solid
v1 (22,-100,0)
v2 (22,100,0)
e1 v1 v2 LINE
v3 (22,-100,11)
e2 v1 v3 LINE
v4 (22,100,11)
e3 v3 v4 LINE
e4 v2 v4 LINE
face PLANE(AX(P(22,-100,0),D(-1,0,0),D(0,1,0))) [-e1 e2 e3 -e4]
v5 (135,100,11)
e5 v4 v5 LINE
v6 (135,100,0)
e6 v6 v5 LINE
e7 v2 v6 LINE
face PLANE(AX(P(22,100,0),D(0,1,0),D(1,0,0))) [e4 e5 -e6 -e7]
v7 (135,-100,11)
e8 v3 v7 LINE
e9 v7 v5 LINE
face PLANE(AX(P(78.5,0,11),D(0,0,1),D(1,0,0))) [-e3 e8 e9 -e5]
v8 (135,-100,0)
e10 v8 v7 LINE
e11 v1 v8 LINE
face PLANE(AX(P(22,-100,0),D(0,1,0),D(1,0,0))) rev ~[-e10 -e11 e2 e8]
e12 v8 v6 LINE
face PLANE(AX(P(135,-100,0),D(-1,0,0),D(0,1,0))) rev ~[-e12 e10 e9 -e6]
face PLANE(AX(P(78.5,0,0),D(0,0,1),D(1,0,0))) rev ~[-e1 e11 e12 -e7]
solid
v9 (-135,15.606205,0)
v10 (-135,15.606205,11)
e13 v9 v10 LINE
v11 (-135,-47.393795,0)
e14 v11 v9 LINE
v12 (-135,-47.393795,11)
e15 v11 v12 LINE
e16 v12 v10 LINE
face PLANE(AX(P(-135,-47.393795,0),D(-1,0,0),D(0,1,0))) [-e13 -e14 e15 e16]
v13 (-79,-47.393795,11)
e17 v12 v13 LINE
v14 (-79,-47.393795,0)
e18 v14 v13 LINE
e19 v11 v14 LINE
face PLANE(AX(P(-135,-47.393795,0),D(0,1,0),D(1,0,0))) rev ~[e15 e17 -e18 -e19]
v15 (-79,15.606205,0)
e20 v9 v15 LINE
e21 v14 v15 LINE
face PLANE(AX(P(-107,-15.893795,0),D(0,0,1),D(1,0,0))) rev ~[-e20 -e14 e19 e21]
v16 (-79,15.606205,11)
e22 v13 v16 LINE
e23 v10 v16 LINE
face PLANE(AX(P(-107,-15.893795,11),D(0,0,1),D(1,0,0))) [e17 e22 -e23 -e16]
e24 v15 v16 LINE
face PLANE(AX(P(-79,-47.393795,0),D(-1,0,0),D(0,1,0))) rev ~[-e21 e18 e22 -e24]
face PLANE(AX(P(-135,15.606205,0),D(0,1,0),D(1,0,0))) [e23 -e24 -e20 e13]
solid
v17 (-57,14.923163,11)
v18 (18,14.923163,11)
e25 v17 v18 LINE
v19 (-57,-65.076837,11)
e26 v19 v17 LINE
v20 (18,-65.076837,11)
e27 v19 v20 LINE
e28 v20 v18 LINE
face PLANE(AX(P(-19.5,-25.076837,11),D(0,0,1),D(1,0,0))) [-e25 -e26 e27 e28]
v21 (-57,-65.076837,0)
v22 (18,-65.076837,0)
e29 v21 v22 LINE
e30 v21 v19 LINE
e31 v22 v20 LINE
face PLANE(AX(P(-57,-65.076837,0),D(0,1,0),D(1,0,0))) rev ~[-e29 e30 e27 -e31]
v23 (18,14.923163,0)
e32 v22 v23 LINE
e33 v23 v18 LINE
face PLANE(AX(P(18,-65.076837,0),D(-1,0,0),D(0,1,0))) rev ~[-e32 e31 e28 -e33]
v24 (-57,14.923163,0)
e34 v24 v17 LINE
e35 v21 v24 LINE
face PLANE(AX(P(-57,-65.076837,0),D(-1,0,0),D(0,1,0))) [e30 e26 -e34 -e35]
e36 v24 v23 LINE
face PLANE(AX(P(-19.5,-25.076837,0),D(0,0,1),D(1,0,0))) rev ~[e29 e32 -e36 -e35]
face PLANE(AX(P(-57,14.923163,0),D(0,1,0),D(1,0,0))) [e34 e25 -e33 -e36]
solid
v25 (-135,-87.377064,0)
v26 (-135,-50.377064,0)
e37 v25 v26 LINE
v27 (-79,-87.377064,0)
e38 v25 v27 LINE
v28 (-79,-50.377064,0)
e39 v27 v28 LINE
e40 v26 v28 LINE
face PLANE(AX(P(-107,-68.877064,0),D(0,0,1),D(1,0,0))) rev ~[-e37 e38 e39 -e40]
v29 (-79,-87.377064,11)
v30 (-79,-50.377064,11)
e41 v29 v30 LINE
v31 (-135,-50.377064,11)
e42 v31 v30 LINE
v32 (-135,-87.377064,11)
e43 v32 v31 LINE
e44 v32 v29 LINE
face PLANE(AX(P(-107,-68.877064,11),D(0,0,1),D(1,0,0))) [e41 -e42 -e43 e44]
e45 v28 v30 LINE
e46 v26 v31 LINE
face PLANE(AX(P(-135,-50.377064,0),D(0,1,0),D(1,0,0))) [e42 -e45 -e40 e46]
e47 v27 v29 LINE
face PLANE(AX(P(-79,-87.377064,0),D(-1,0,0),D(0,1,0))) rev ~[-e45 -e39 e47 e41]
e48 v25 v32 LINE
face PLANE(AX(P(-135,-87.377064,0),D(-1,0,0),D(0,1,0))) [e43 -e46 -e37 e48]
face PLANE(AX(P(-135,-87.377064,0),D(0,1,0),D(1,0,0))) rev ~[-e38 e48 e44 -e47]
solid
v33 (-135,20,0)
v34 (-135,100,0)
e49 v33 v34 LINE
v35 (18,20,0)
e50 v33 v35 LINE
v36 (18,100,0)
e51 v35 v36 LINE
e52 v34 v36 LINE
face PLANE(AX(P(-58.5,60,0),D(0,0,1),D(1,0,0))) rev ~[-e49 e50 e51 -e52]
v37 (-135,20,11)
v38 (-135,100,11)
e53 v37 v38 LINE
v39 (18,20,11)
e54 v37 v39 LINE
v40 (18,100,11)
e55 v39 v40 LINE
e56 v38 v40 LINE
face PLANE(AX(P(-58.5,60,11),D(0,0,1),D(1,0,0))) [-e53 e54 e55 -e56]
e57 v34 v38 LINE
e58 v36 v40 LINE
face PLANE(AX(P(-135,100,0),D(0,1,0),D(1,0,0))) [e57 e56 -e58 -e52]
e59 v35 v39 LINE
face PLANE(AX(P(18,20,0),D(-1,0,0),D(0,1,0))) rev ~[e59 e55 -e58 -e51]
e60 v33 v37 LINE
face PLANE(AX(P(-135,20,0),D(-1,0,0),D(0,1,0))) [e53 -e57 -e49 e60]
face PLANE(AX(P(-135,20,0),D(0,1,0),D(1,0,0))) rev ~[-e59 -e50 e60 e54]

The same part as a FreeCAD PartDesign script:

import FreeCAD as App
import Part
import Sketcher

doc = App.newDocument("Part")
body = doc.addObject("PartDesign::Body", "Body")
body.AllowCompound = True

sketch1 = body.newObject("Sketcher::SketchObject", "Sketch")
sketch1.AttachmentSupport = (doc.getObject("XY_Plane"), [""])
sketch1.MapMode = "FlatFace"
sketch1.addGeometry([
    Part.LineSegment(App.Vector(-135, 100, 0), App.Vector(-135, 20, 0)),
    Part.LineSegment(App.Vector(-135, 20, 0), App.Vector(18, 20, 0)),
    Part.LineSegment(App.Vector(18, 20, 0), App.Vector(18, 100, 0)),
    Part.LineSegment(App.Vector(18, 100, 0), App.Vector(-135, 100, 0)),
    Part.LineSegment(App.Vector(-135, 15.606205, 0), App.Vector(-135, -47.393795, 0)),
    Part.LineSegment(App.Vector(-135, -47.393795, 0), App.Vector(-79, -47.393795, 0)),
    Part.LineSegment(App.Vector(-79, -47.393795, 0), App.Vector(-79, 15.606205, 0)),
    Part.LineSegment(App.Vector(-79, 15.606205, 0), App.Vector(-135, 15.606205, 0)),
    Part.LineSegment(App.Vector(-135, -50.377064, 0), App.Vector(-135, -87.377064, 0)),
    Part.LineSegment(App.Vector(-135, -87.377064, 0), App.Vector(-79, -87.377064, 0)),
    Part.LineSegment(App.Vector(-79, -87.377064, 0), App.Vector(-79, -50.377064, 0)),
    Part.LineSegment(App.Vector(-79, -50.377064, 0), App.Vector(-135, -50.377064, 0)),
    Part.LineSegment(App.Vector(-57, 14.923163, 0), App.Vector(-57, -65.076837, 0)),
    Part.LineSegment(App.Vector(-57, -65.076837, 0), App.Vector(18, -65.076837, 0)),
    Part.LineSegment(App.Vector(18, -65.076837, 0), App.Vector(18, 14.923163, 0)),
    Part.LineSegment(App.Vector(18, 14.923163, 0), App.Vector(-57, 14.923163, 0)),
    Part.LineSegment(App.Vector(22, 100, 0), App.Vector(22, -100, 0)),
    Part.LineSegment(App.Vector(22, -100, 0), App.Vector(135, -100, 0)),
    Part.LineSegment(App.Vector(135, -100, 0), App.Vector(135, 100, 0)),
    Part.LineSegment(App.Vector(135, 100, 0), App.Vector(22, 100, 0)),
], False)
sketch1.addConstraint([
    Sketcher.Constraint("Coincident", 0, 2, 1, 1),
    Sketcher.Constraint("Coincident", 1, 2, 2, 1),
    Sketcher.Constraint("Coincident", 2, 2, 3, 1),
    Sketcher.Constraint("Coincident", 3, 2, 0, 1),
    Sketcher.Constraint("Coincident", 4, 2, 5, 1),
    Sketcher.Constraint("Coincident", 5, 2, 6, 1),
    Sketcher.Constraint("Coincident", 6, 2, 7, 1),
    Sketcher.Constraint("Coincident", 7, 2, 4, 1),
    Sketcher.Constraint("Coincident", 8, 2, 9, 1),
    Sketcher.Constraint("Coincident", 9, 2, 10, 1),
    Sketcher.Constraint("Coincident", 10, 2, 11, 1),
    Sketcher.Constraint("Coincident", 11, 2, 8, 1),
    Sketcher.Constraint("Coincident", 12, 2, 13, 1),
    Sketcher.Constraint("Coincident", 13, 2, 14, 1),
    Sketcher.Constraint("Coincident", 14, 2, 15, 1),
    Sketcher.Constraint("Coincident", 15, 2, 12, 1),
    Sketcher.Constraint("Coincident", 16, 2, 17, 1),
    Sketcher.Constraint("Coincident", 17, 2, 18, 1),
    Sketcher.Constraint("Coincident", 18, 2, 19, 1),
    Sketcher.Constraint("Coincident", 19, 2, 16, 1),
    Sketcher.Constraint("Vertical", 0),
    Sketcher.Constraint("Horizontal", 1),
    Sketcher.Constraint("Vertical", 2),
    Sketcher.Constraint("Horizontal", 3),
    Sketcher.Constraint("Vertical", 4),
    Sketcher.Constraint("Horizontal", 5),
    Sketcher.Constraint("Vertical", 6),
    Sketcher.Constraint("Horizontal", 7),
    Sketcher.Constraint("Vertical", 8),
    Sketcher.Constraint("Horizontal", 9),
    Sketcher.Constraint("Vertical", 10),
    Sketcher.Constraint("Horizontal", 11),
    Sketcher.Constraint("Vertical", 12),
    Sketcher.Constraint("Horizontal", 13),
    Sketcher.Constraint("Vertical", 14),
    Sketcher.Constraint("Horizontal", 15),
    Sketcher.Constraint("Vertical", 16),
    Sketcher.Constraint("Horizontal", 17),
    Sketcher.Constraint("Vertical", 18),
    Sketcher.Constraint("Horizontal", 19),
    Sketcher.Constraint("Symmetric", 3, 2, 17, 2, -1, 1),
    Sketcher.Constraint("Horizontal", 3, 2, 18, 2),
    Sketcher.Constraint("Vertical", 3, 2, 4, 2),
    Sketcher.Constraint("Vertical", 7, 2, 8, 2),
    Sketcher.Constraint("Vertical", 6, 2, 9, 2),
    Sketcher.Constraint("Vertical", 2, 2, 13, 2),
    Sketcher.Constraint("Equal", 2, 12),
    Sketcher.Constraint("DistanceX", 1, 1, 1, 2, 153.0),
    Sketcher.Constraint("DistanceX", 5, 1, 5, 2, 56.0),
    Sketcher.Constraint("DistanceX", 13, 1, 13, 2, 75.0),
    Sketcher.Constraint("DistanceX", 17, 1, 17, 2, 113.0),
    Sketcher.Constraint("DistanceY", 0, 2, 0, 1, 80.0),
    Sketcher.Constraint("DistanceY", 4, 2, 4, 1, 63.0),
    Sketcher.Constraint("DistanceY", 8, 2, 8, 1, 37.0),
    Sketcher.Constraint("DistanceY", 16, 2, 16, 1, 200.0),
    Sketcher.Constraint("DistanceX", 0, 2, -1, 1, 135.0),
    Sketcher.Constraint("DistanceY", 8, 2, 4, 2, 39.983269),
    Sketcher.Constraint("DistanceY", 14, 2, 6, 2, 0.683042),
    Sketcher.Constraint("DistanceY", 4, 2, -1, 1, 47.393795),
])
pad1 = body.newObject("PartDesign::Pad", "Pad")
pad1.Profile = sketch1
pad1.Length = 11

doc.recompute()
